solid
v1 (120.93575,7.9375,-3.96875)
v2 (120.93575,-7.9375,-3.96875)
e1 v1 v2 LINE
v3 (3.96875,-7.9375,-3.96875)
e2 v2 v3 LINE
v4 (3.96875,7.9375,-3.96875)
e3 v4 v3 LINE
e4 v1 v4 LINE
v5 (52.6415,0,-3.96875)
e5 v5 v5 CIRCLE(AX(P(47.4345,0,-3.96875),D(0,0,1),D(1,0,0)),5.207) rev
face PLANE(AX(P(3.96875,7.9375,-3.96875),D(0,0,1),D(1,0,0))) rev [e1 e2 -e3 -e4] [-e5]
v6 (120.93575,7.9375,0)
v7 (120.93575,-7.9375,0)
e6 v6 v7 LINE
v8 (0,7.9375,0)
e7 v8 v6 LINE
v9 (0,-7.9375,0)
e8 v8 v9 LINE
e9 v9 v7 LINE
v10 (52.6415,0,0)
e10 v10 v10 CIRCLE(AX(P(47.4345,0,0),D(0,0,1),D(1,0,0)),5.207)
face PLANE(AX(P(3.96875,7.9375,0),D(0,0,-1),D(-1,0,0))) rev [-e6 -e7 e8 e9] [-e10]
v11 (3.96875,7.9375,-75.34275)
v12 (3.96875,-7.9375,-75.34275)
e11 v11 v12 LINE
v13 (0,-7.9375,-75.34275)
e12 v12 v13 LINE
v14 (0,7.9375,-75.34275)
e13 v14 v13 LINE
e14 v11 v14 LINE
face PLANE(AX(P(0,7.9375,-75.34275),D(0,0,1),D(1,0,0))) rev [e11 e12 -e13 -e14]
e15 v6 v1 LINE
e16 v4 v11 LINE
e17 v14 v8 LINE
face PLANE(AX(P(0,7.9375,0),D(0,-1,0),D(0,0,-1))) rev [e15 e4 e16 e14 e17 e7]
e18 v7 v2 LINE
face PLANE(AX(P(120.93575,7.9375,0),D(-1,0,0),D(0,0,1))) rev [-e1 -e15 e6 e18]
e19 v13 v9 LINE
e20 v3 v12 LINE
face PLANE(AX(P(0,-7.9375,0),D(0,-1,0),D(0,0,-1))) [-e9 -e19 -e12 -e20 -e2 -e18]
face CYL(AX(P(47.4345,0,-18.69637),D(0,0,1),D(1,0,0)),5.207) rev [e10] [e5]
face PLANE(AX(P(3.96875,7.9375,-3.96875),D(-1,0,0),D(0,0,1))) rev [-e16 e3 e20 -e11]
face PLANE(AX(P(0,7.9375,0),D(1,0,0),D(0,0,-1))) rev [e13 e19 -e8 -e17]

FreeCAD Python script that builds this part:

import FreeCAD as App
import Part
import Sketcher
Q = App.Units.Quantity


def add_polygon(sketch, points):
    """Adds a closed chain of lines whose ends are joined by coincident constraints."""
    first, n = sketch.GeometryCount, len(points)
    for a, b in zip(points, points[1:] + points[:1]):
        sketch.addGeometry(Part.LineSegment(App.Vector(*a, 0), App.Vector(*b, 0)), False)
    for i in range(n):
        sketch.addConstraint(Sketcher.Constraint("Coincident", first + i, 2, first + (i + 1) % n, 1))

doc = App.newDocument("Part")
body = doc.addObject("PartDesign::Body", "Body")

sketch1 = body.newObject("Sketcher::SketchObject", "Sketch")
sketch1.AttachmentSupport = (doc.getObject("XZ_Plane"), [""])
sketch1.MapMode = "FlatFace"
add_polygon(sketch1, [(0, 0), (120.9, 0), (120.9, -4), (4, -4), (4, -75.3), (0, -75.3)])
sketch1.addConstraint([
    Sketcher.Constraint("Horizontal", 0),
    Sketcher.Constraint("Vertical", 1),
    Sketcher.Constraint("Horizontal", 2),
    Sketcher.Constraint("Vertical", 3),
    Sketcher.Constraint("Horizontal", 4),
    Sketcher.Constraint("Vertical", 5),
    Sketcher.Constraint("Coincident", 5, 2, -1, 1),
    Sketcher.Constraint("Equal", 4, 1),
    Sketcher.Constraint("DistanceY", 3, 2, 3, 1, Q("2.81 in")),
    Sketcher.Constraint("DistanceX", 2, 2, 2, 1, Q("4.605 in")),
    Sketcher.Constraint("DistanceX", 4, 2, 4, 1, Q("0.15625 in")),
])
pad1 = body.newObject("PartDesign::Pad", "Pad")
pad1.Profile = sketch1
pad1.Length = Q("0.625 in")
pad1.Midplane = True

sketch2 = body.newObject("Sketcher::SketchObject", "Sketch001")
sketch2.AttachmentSupport = (doc.getObject("XY_Plane"), [""])
sketch2.MapMode = "FlatFace"
sketch2.addGeometry(Part.Circle(App.Vector(47, 0, 0), App.Vector(0, 0, 1), 5), False)
sketch2.addConstraint([
    Sketcher.Constraint("PointOnObject", 0, 3, -1),
    Sketcher.Constraint("Diameter", 0, Q("0.41 in")),
    Sketcher.Constraint("DistanceX", -1, 1, 0, 3, Q("1.8675 in")),
])
pocket1 = body.newObject("PartDesign::Pocket", "Pocket")
pocket1.Profile = sketch2
pocket1.Length = Q("0.15625 in")

doc.recompute()
